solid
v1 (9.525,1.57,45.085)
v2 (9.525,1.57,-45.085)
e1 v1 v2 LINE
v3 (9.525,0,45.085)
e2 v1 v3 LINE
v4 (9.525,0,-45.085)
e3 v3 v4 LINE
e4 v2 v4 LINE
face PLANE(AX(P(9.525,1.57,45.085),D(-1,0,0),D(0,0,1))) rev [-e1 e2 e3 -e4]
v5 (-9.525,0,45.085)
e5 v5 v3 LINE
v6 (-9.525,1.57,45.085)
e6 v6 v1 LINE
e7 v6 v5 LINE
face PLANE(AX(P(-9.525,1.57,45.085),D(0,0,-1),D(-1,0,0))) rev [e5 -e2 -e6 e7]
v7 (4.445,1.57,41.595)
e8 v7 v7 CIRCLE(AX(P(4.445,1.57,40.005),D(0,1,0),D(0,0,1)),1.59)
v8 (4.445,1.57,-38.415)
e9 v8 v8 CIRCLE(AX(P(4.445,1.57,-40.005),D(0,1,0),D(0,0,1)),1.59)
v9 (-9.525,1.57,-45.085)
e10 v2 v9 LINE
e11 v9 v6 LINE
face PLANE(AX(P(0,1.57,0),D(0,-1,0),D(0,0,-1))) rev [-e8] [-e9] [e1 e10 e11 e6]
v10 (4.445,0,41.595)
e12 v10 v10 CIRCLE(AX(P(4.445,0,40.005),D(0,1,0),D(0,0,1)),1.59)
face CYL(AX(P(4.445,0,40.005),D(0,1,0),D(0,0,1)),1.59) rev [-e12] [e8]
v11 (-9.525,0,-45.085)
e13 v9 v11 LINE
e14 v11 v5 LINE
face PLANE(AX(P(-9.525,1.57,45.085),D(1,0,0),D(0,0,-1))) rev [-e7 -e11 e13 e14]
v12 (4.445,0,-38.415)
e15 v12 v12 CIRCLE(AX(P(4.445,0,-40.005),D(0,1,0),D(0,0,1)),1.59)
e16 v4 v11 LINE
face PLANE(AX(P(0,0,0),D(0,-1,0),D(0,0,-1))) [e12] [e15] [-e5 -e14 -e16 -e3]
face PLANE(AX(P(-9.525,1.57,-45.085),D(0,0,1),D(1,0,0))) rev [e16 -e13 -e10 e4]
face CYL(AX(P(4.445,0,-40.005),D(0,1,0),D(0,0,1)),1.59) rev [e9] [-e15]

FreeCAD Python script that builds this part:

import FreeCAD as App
import Part
import Sketcher
Q = App.Units.Quantity


def add_polygon(sketch, points):
    """Adds a closed chain of lines whose ends are joined by coincident constraints."""
    first, n = sketch.GeometryCount, len(points)
    for a, b in zip(points, points[1:] + points[:1]):
        sketch.addGeometry(Part.LineSegment(App.Vector(*a, 0), App.Vector(*b, 0)), False)
    for i in range(n):
        sketch.addConstraint(Sketcher.Constraint("Coincident", first + i, 2, first + (i + 1) % n, 1))

doc = App.newDocument("Part")
body = doc.addObject("PartDesign::Body", "Body")

# Sketch on XZ plane
sketch1 = doc.addObject("Sketcher::SketchObject", "Sketch")
body.addObject(sketch1)
sketch1.AttachmentSupport = (doc.XZ_Plane, [""])
sketch1.MapMode = "FlatFace"
add_polygon(sketch1, [(-10, -45), (-10, 45), (10, 45), (10, -45)])  # lines 0-3
sketch1.addConstraint([
    Sketcher.Constraint("Vertical", 0),
    Sketcher.Constraint("Horizontal", 1),
    Sketcher.Constraint("Vertical", 2),
    Sketcher.Constraint("Horizontal", 3),
    Sketcher.Constraint("Symmetric", 0, 2, 2, 2, -1, 1),
    Sketcher.Constraint("DistanceX", 1, 1, 1, 2, Q("0.75 in")),
    Sketcher.Constraint("DistanceY", 0, 1, 0, 2, Q("3.55 in")),
])
pad1 = doc.addObject("PartDesign::Pad", "Pad")
body.addObject(pad1)
pad1.Profile = sketch1
pad1.Length = 1.57
pad1.Reversed = True

# Sketch on XZ plane
sketch2 = doc.addObject("Sketcher::SketchObject", "Sketch001")
body.addObject(sketch2)
sketch2.AttachmentSupport = (doc.XZ_Plane, [""])
sketch2.MapMode = "FlatFace"
sketch2.AttachmentOffset = App.Placement(App.Vector(0, 0, -1.57), App.Rotation())
sketch2.addGeometry([
    Part.Circle(App.Vector(4.4, 40, 0), App.Vector(0, 0, 1), 1.6),
    Part.Circle(App.Vector(4.4, -40, 0), App.Vector(0, 0, 1), 1.6),
], False)
sketch2.addConstraint([
    Sketcher.Constraint("Equal", 0, 1),
    Sketcher.Constraint("Symmetric", 0, 3, 1, 3, -1),
    Sketcher.Constraint("Diameter", 0, 3.18),
    Sketcher.Constraint("DistanceY", 1, 3, 0, 3, Q("3.15 in")),
    Sketcher.Constraint("DistanceX", -1, 1, 0, 3, Q("0.175 in")),
])
pocket1 = doc.addObject("PartDesign::Pocket", "Pocket")
body.addObject(pocket1)
pocket1.Profile = sketch2
pocket1.Type = "ThroughAll"
pocket1.Reversed = True

doc.recompute()
